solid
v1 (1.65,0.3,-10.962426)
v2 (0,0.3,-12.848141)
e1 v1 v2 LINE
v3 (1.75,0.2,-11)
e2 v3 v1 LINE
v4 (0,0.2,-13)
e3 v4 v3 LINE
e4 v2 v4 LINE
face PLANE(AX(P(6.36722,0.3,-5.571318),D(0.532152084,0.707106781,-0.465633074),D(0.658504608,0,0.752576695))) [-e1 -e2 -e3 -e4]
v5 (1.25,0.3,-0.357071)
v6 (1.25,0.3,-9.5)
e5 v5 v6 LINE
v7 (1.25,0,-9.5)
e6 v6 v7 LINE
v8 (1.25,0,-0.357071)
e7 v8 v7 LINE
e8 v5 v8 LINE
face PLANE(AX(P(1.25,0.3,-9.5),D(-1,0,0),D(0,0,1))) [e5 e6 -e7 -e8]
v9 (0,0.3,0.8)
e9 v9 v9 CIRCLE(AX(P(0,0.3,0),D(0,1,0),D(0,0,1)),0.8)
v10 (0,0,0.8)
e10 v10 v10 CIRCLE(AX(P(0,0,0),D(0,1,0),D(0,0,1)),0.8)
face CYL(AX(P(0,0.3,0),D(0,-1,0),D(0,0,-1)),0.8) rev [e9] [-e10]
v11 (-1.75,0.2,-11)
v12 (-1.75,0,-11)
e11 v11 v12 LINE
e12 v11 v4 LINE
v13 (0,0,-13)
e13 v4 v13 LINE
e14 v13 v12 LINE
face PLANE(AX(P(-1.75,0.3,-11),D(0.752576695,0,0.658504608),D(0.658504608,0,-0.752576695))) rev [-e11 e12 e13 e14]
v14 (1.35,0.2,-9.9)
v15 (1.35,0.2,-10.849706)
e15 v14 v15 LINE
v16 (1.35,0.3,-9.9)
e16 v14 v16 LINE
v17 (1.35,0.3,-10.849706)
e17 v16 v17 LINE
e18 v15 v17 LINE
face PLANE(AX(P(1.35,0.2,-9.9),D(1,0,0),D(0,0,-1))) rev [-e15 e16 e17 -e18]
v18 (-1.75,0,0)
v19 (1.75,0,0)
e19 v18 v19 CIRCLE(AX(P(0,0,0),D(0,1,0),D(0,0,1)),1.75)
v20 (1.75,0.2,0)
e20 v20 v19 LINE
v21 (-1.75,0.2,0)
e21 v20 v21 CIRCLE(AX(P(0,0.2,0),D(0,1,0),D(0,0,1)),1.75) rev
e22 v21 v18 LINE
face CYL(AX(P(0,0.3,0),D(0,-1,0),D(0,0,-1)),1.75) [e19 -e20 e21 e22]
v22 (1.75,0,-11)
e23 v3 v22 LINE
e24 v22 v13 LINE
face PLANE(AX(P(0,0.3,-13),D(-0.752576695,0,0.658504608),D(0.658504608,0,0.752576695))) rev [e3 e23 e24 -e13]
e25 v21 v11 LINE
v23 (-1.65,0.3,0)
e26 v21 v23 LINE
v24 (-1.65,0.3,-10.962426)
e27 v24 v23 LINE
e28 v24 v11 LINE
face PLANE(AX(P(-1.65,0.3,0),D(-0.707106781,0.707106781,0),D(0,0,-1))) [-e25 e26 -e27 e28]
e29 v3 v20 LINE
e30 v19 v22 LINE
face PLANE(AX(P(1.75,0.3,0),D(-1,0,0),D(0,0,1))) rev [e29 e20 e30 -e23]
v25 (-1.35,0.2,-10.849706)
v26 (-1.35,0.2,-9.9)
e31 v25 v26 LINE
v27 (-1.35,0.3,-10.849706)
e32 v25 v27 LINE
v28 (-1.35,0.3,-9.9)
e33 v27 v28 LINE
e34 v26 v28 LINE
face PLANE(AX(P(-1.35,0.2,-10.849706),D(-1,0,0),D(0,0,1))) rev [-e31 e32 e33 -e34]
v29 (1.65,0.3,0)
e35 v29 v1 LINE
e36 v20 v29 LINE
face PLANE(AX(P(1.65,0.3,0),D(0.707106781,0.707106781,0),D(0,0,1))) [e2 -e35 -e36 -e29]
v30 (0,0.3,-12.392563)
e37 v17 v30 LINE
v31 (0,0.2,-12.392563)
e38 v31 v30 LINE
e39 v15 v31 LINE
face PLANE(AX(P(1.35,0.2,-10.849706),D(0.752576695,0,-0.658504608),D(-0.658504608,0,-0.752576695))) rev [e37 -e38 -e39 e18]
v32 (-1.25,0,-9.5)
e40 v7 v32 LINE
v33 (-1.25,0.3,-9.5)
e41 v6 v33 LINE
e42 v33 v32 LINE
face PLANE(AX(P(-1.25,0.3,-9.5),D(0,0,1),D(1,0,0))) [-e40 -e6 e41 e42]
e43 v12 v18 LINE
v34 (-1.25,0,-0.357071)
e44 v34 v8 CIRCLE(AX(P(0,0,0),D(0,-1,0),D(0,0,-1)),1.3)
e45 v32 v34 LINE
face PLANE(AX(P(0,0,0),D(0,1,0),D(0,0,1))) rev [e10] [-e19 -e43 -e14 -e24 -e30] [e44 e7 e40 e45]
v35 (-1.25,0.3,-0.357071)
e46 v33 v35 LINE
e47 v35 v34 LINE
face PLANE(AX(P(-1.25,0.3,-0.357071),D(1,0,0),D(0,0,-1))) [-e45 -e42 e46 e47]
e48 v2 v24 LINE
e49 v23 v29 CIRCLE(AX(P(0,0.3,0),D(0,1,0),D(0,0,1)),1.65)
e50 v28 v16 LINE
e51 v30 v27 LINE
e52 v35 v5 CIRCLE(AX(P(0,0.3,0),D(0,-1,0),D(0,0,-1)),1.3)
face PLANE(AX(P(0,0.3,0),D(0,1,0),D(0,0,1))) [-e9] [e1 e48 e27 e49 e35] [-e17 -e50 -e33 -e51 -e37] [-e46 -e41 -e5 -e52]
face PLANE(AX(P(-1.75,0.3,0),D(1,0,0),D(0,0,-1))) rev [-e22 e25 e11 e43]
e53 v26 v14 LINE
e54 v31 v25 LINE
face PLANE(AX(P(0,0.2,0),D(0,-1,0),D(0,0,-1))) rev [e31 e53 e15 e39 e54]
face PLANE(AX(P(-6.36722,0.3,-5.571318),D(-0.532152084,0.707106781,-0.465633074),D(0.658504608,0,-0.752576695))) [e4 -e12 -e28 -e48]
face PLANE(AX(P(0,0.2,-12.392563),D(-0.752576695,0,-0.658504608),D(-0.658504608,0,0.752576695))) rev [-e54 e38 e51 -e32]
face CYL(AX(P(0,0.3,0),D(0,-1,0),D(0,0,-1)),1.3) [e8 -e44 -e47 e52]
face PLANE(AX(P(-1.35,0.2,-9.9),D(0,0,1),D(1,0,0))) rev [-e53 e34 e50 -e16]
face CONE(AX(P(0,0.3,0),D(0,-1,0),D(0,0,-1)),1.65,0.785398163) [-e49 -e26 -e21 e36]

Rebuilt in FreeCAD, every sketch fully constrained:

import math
import FreeCAD as App
import Part
import Sketcher

V = App.Vector
Q = App.Units.Quantity


def edges_at(feature, points):
    """Names of the edges that pass closest to the given points."""
    edges = feature.Shape.Edges
    near = lambda p: min(range(len(edges)), key=lambda i: edges[i].distToShape(Part.Vertex(*p))[0])
    return sorted({f"Edge{near(p) + 1}" for p in points})


def add_polygon(sketch, points):
    """Adds a closed chain of lines whose ends are joined by coincident constraints."""
    first, n = sketch.GeometryCount, len(points)
    for a, b in zip(points, points[1:] + points[:1]):
        sketch.addGeometry(Part.LineSegment(App.Vector(*a, 0), App.Vector(*b, 0)), False)
    for i in range(n):
        sketch.addConstraint(Sketcher.Constraint("Coincident", first + i, 2, first + (i + 1) % n, 1))

doc = App.newDocument("Part")
params = doc.addObject("Spreadsheet::Sheet", "Params")
for row, (alias, value) in enumerate([
    ("sketch1_diameter", "1.6 mm"),
    ("sketch1_radius", "1.3 mm"),
    ("sketch1_height", "11 mm"),
    ("sketch1_radius2", "1.75 mm"),
    ("sketch1_width", "2.5 mm"),
    ("pad1_length", "0.3 mm"),
    ("sketch2_width", "2.7 mm"),
    ("pocket1_length", "0.1 mm"),
    ("chamfer_size", "0.1 mm"),
], start=1):
    params.set(f"A{row}", alias)
    params.set(f"B{row}", "=" + value)
    params.setAlias(f"B{row}", alias)

body = doc.addObject("PartDesign::Body", "Body")

sketch1 = doc.addObject("Sketcher::SketchObject", "Sketch")
body.addObject(sketch1)
sketch1.AttachmentSupport = (doc.XZ_Plane, [""])
sketch1.MapMode = "FlatFace"
sketch1.addGeometry(Part.LineSegment(V(-1.8, -11, 0), V(-1.8, 0, 0)), False)
sketch1.addGeometry(Part.ArcOfCircle(Part.Circle(V(0, 0, 0), V(0, 0, 1), 1.8), math.radians(0), math.radians(180)), False)
sketch1.addGeometry(Part.LineSegment(V(1.8, 0, 0), V(1.8, -11, 0)), False)
sketch1.addGeometry(Part.LineSegment(V(1.8, -11, 0), V(0, -13, 0)), False)
sketch1.addGeometry(Part.LineSegment(V(0, -13, 0), V(-1.8, -11, 0)), False)
sketch1.addGeometry(Part.Circle(V(0, 0, 0), V(0, 0, 1), 0.8), False)
sketch1.addGeometry(Part.LineSegment(V(-1.2, -0.4, 0), V(-1.2, -9.5, 0)), False)
sketch1.addGeometry(Part.LineSegment(V(-1.2, -9.5, 0), V(1.2, -9.5, 0)), False)
sketch1.addGeometry(Part.LineSegment(V(1.2, -9.5, 0), V(1.2, -0.4, 0)), False)
sketch1.addGeometry(Part.ArcOfCircle(Part.Circle(V(0, 0, 0), V(0, 0, 1), 1.3), math.radians(-164), math.radians(-16)), False)
sketch1.addConstraint(Sketcher.Constraint("Tangent", 0, 2, 1, 2))
sketch1.addConstraint(Sketcher.Constraint("Tangent", 1, 1, 2, 1))
sketch1.addConstraint(Sketcher.Constraint("Coincident", 2, 2, 3, 1))
sketch1.addConstraint(Sketcher.Constraint("Coincident", 3, 2, 4, 1))
sketch1.addConstraint(Sketcher.Constraint("Coincident", 4, 2, 0, 1))
sketch1.addConstraint(Sketcher.Constraint("Coincident", 6, 2, 7, 1))
sketch1.addConstraint(Sketcher.Constraint("Coincident", 7, 2, 8, 1))
sketch1.addConstraint(Sketcher.Constraint("Coincident", 8, 2, 9, 2))
sketch1.addConstraint(Sketcher.Constraint("Coincident", 9, 1, 6, 1))
sketch1.addConstraint(Sketcher.Constraint("Vertical", 0))
sketch1.addConstraint(Sketcher.Constraint("Vertical", 2))
sketch1.addConstraint(Sketcher.Constraint("Vertical", 6))
sketch1.addConstraint(Sketcher.Constraint("Horizontal", 7))
sketch1.addConstraint(Sketcher.Constraint("Vertical", 8))
sketch1.addConstraint(Sketcher.Constraint("Coincident", 1, 3, -1, 1))
sketch1.addConstraint(Sketcher.Constraint("Coincident", 5, 3, -1, 1))
sketch1.addConstraint(Sketcher.Constraint("Coincident", 9, 3, -1, 1))
sketch1.addConstraint(Sketcher.Constraint("PointOnObject", 3, 2, -2))
sketch1.addConstraint(Sketcher.Constraint("Horizontal", 2, 2, 4, 2))
sketch1.addConstraint(Sketcher.Constraint("Horizontal", 8, 2, 9, 1))
sketch1.addConstraint(Sketcher.Constraint("Diameter", 5, Q("1.6 mm")))
sketch1.addConstraint(Sketcher.Constraint("Radius", 9, Q("1.3 mm")))
sketch1.addConstraint(Sketcher.Constraint("DistanceY", 0, 1, 0, 2, Q("11 mm")))
sketch1.addConstraint(Sketcher.Constraint("Radius", 1, Q("1.75 mm")))
sketch1.addConstraint(Sketcher.Constraint("DistanceX", 7, 1, 7, 2, Q("2.5 mm")))
sketch1.addConstraint(Sketcher.Constraint("DistanceY", 3, 2, -1, 1, Q("13 mm")))
sketch1.addConstraint(Sketcher.Constraint("DistanceY", 6, 2, -1, 1, Q("9.5 mm")))
sketch1.setExpression("Constraints[20]", "Params.sketch1_diameter")
sketch1.setExpression("Constraints[21]", "Params.sketch1_radius")
sketch1.setExpression("Constraints[22]", "Params.sketch1_height")
sketch1.setExpression("Constraints[23]", "Params.sketch1_radius2")
sketch1.setExpression("Constraints[24]", "Params.sketch1_width")
pad1 = doc.addObject("PartDesign::Pad", "Pad")
body.addObject(pad1)
pad1.Profile = sketch1
pad1.setExpression("Length", "Params.pad1_length")
pad1.Reversed = True

sketch2 = doc.addObject("Sketcher::SketchObject", "Sketch001")
body.addObject(sketch2)
sketch2.AttachmentSupport = (doc.XZ_Plane, [""])
sketch2.MapMode = "FlatFace"
sketch2.AttachmentOffset = App.Placement(V(0, 0, -0.3), App.Rotation())
add_polygon(sketch2, [(-1.4, -10.8), (-1.4, -9.9), (1.4, -9.9), (1.4, -10.8), (0, -12.4)])
sketch2.addConstraint(Sketcher.Constraint("Vertical", 0))
sketch2.addConstraint(Sketcher.Constraint("Horizontal", 1))
sketch2.addConstraint(Sketcher.Constraint("Vertical", 2))
sketch2.addConstraint(Sketcher.Constraint("Symmetric", 2, 2, 4, 2, -2))
sketch2.addConstraint(Sketcher.Constraint("PointOnObject", 3, 2, -2))
sketch2.addConstraint(Sketcher.Constraint("DistanceX", 1, 1, 1, 2, Q("2.7 mm")))
sketch2.addConstraint(Sketcher.Constraint("DistanceY", 0, 2, -1, 1, Q("9.9 mm")))
sketch2.addConstraint(Sketcher.Constraint("Distance", 3, Q("2.0501 mm")))
sketch2.addConstraint(Sketcher.Constraint("DistanceY", 0, 1, 0, 2, Q("0.949706 mm")))
sketch2.setExpression("Constraints[10]", "Params.sketch2_width")
pocket1 = doc.addObject("PartDesign::Pocket", "Pocket")
body.addObject(pocket1)
pocket1.Profile = sketch2
pocket1.setExpression("Length", "Params.pocket1_length")
pocket1.Reversed = True
doc.recompute()

chamfer = doc.addObject("PartDesign::Chamfer", "Chamfer")
body.addObject(chamfer)
chamfer.Base = (pocket1, edges_at(pocket1, [
    (0.875, 0.3, -12),
    (-0.875, 0.3, -12),
    (-1.75, 0.3, -5.5),
    (0, 0.3, 1.75),
    (1.75, 0.3, -5.5),
]))
chamfer.setExpression("Size", "Params.chamfer_size")

doc.recompute()
